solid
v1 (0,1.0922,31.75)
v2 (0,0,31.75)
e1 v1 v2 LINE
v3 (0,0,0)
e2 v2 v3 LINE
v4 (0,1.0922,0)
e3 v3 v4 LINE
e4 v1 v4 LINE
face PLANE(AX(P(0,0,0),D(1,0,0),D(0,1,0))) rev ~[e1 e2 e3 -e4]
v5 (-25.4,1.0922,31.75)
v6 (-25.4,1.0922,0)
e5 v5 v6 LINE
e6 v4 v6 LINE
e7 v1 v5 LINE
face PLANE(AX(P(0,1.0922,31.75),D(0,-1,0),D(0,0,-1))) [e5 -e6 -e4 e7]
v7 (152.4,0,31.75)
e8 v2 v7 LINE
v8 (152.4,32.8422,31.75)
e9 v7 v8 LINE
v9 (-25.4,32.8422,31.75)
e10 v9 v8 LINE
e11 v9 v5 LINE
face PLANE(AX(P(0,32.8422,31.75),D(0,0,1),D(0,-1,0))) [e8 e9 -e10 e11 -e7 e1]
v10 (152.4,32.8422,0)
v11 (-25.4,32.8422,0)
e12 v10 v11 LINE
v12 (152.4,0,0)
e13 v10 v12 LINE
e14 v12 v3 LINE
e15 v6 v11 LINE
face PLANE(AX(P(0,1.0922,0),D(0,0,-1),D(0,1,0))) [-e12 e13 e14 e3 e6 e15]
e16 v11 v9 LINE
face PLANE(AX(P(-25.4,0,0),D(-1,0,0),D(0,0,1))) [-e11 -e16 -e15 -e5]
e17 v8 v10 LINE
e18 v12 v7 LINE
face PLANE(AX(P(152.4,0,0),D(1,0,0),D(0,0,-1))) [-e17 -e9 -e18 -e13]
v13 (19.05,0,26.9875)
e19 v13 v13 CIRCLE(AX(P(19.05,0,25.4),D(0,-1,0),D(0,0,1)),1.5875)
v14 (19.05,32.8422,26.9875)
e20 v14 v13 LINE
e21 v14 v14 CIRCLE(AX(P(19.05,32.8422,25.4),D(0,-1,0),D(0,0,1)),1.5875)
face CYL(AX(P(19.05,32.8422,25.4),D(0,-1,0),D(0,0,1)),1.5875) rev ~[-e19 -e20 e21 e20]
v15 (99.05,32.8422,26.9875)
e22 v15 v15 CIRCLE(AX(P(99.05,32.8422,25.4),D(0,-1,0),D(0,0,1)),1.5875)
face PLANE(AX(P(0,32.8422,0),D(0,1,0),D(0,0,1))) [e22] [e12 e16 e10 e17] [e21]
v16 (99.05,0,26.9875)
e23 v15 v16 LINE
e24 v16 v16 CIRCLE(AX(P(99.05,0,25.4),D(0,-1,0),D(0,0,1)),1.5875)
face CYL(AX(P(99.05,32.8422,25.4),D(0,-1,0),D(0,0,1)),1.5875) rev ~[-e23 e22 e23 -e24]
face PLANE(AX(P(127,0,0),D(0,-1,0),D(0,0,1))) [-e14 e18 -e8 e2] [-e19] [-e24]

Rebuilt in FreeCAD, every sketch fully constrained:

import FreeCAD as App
import Part
import Sketcher
from FreeCAD import Vector
Q = App.Units.Quantity


def add_polygon(sketch, points):
    """Adds a closed chain of lines whose ends are joined by coincident constraints."""
    first, n = sketch.GeometryCount, len(points)
    for a, b in zip(points, points[1:] + points[:1]):
        sketch.addGeometry(Part.LineSegment(App.Vector(*a, 0), App.Vector(*b, 0)), False)
    for i in range(n):
        sketch.addConstraint(Sketcher.Constraint("Coincident", first + i, 2, first + (i + 1) % n, 1))

doc = App.newDocument("Part")
params = doc.addObject("Spreadsheet::Sheet", "Params")
for row, (alias, value) in enumerate([
    ("sketch1_height", "1.25 in"),
    ("sketch1_width", "1.293 in"),
    ("pad1_length", "5 in"),
    ("sketch2_diameter", "0.125 in"),
    ("hole_diameter", "0.125 in"),
    ("sketch3_height", "1.25 in"),
    ("sketch3_width", "1.293 in"),
    ("pad2_length", "1 in"),
    ("sketch4_width", "1.25 in"),
    ("pad3_length", "1 in"),
], start=1):
    params.set(f"A{row}", alias)
    params.set(f"B{row}", "=" + value)
    params.setAlias(f"B{row}", alias)

body = doc.addObject("PartDesign::Body", "Body")

# Sketch on YZ plane
sketch1 = body.newObject("Sketcher::SketchObject", "Sketch")
sketch1.AttachmentSupport = (doc.getObject("YZ_Plane"), [""])
sketch1.MapMode = "FlatFace"
add_polygon(sketch1, [(0, 32), (0, 0), (33, 0), (33, 32)])  # lines 0-3
sketch1.addConstraint([
    Sketcher.Constraint("Vertical", 0),
    Sketcher.Constraint("Horizontal", 1),
    Sketcher.Constraint("Vertical", 2),
    Sketcher.Constraint("Horizontal", 3),
    Sketcher.Constraint("Coincident", 0, 2, -1, 1),
    Sketcher.Constraint("DistanceY", 0, 2, 0, 1, Q("1.25 in")),
    Sketcher.Constraint("DistanceX", 1, 1, 1, 2, Q("1.293 in")),
])
sketch1.setExpression("Constraints[9]", "Params.sketch1_height")
sketch1.setExpression("Constraints[10]", "Params.sketch1_width")
pad1 = body.newObject("PartDesign::Pad", "Pad")
pad1.Profile = sketch1
pad1.setExpression("Length", "Params.pad1_length")

# Sketch on XZ plane
sketch2 = body.newObject("Sketcher::SketchObject", "Sketch001")
sketch2.AttachmentSupport = (doc.getObject("XZ_Plane"), [""])
sketch2.MapMode = "FlatFace"
sketch2.AttachmentOffset = App.Placement(Vector(0, 0, -1.293 * 25.4), App.Rotation())
sketch2.addGeometry([
    Part.Circle(Vector(19.1, 25.4, 0), Vector(0, 0, 1), 1.6),
    Part.Circle(Vector(99, 25.4, 0), Vector(0, 0, 1), 1.6),
], False)
sketch2.addConstraint([
    Sketcher.Constraint("Equal", 0, 1),
    Sketcher.Constraint("Horizontal", 0, 3, 1, 3),
    Sketcher.Constraint("Diameter", 0, Q("0.125 in")),
    Sketcher.Constraint("DistanceY", -1, 1, 0, 3, Q("1 in")),
    Sketcher.Constraint("DistanceX", -1, 1, 0, 3, Q("0.75 in")),
    Sketcher.Constraint("DistanceX", -1, 1, 1, 3, Q("3.8996 in")),
])
sketch2.setExpression("Constraints[2]", "Params.sketch2_diameter")
doc.recompute()
hole = body.newObject("PartDesign::Hole", "Hole")
hole.Profile = sketch2
hole.ThreadType = "None"
hole.setExpression("Diameter", "Params.hole_diameter")
hole.DepthType = "ThroughAll"
hole.Reversed = True

# Sketch on YZ plane
sketch3 = body.newObject("Sketcher::SketchObject", "Sketch002")
sketch3.AttachmentSupport = (doc.getObject("YZ_Plane"), [""])
sketch3.MapMode = "FlatFace"
sketch3.AttachmentOffset = App.Placement(Vector(0, 0, 5 * 25.4), App.Rotation())
add_polygon(sketch3, [(33, 0), (33, 32), (0, 32), (0, 0)])  # lines 0-3
sketch3.addConstraint([
    Sketcher.Constraint("Vertical", 0),
    Sketcher.Constraint("Horizontal", 1),
    Sketcher.Constraint("Vertical", 2),
    Sketcher.Constraint("Horizontal", 3),
    Sketcher.Constraint("Coincident", 2, 2, -1, 1),
    Sketcher.Constraint("DistanceY", 0, 1, 0, 2, Q("1.25 in")),
    Sketcher.Constraint("DistanceX", 1, 2, 1, 1, Q("1.293 in")),
])
sketch3.setExpression("Constraints[9]", "Params.sketch3_height")
sketch3.setExpression("Constraints[10]", "Params.sketch3_width")
pad2 = body.newObject("PartDesign::Pad", "Pad001")
pad2.Profile = sketch3
pad2.setExpression("Length", "Params.pad2_length")

# Sketch on YZ plane
sketch4 = body.newObject("Sketcher::SketchObject", "Sketch003")
sketch4.AttachmentSupport = (doc.getObject("YZ_Plane"), [""])
sketch4.MapMode = "FlatFace"
add_polygon(sketch4, [(33, 32), (33, 0), (1, 0), (1, 32)])  # lines 0-3
sketch4.addConstraint([
    Sketcher.Constraint("Vertical", 0),
    Sketcher.Constraint("Horizontal", 1),
    Sketcher.Constraint("Vertical", 2),
    Sketcher.Constraint("Horizontal", 3),
    Sketcher.Constraint("PointOnObject", 0, 2, -1),
    Sketcher.Constraint("Equal", 3, 0),
    Sketcher.Constraint("DistanceX", 1, 2, 1, 1, Q("1.25 in")),
    Sketcher.Constraint("DistanceX", -1, 1, 0, 2, Q("1.293 in")),
])
sketch4.setExpression("Constraints[10]", "Params.sketch4_width")
pad3 = body.newObject("PartDesign::Pad", "Pad002")
pad3.Profile = sketch4
pad3.setExpression("Length", "Params.pad3_length")
pad3.Reversed = True

doc.recompute()
